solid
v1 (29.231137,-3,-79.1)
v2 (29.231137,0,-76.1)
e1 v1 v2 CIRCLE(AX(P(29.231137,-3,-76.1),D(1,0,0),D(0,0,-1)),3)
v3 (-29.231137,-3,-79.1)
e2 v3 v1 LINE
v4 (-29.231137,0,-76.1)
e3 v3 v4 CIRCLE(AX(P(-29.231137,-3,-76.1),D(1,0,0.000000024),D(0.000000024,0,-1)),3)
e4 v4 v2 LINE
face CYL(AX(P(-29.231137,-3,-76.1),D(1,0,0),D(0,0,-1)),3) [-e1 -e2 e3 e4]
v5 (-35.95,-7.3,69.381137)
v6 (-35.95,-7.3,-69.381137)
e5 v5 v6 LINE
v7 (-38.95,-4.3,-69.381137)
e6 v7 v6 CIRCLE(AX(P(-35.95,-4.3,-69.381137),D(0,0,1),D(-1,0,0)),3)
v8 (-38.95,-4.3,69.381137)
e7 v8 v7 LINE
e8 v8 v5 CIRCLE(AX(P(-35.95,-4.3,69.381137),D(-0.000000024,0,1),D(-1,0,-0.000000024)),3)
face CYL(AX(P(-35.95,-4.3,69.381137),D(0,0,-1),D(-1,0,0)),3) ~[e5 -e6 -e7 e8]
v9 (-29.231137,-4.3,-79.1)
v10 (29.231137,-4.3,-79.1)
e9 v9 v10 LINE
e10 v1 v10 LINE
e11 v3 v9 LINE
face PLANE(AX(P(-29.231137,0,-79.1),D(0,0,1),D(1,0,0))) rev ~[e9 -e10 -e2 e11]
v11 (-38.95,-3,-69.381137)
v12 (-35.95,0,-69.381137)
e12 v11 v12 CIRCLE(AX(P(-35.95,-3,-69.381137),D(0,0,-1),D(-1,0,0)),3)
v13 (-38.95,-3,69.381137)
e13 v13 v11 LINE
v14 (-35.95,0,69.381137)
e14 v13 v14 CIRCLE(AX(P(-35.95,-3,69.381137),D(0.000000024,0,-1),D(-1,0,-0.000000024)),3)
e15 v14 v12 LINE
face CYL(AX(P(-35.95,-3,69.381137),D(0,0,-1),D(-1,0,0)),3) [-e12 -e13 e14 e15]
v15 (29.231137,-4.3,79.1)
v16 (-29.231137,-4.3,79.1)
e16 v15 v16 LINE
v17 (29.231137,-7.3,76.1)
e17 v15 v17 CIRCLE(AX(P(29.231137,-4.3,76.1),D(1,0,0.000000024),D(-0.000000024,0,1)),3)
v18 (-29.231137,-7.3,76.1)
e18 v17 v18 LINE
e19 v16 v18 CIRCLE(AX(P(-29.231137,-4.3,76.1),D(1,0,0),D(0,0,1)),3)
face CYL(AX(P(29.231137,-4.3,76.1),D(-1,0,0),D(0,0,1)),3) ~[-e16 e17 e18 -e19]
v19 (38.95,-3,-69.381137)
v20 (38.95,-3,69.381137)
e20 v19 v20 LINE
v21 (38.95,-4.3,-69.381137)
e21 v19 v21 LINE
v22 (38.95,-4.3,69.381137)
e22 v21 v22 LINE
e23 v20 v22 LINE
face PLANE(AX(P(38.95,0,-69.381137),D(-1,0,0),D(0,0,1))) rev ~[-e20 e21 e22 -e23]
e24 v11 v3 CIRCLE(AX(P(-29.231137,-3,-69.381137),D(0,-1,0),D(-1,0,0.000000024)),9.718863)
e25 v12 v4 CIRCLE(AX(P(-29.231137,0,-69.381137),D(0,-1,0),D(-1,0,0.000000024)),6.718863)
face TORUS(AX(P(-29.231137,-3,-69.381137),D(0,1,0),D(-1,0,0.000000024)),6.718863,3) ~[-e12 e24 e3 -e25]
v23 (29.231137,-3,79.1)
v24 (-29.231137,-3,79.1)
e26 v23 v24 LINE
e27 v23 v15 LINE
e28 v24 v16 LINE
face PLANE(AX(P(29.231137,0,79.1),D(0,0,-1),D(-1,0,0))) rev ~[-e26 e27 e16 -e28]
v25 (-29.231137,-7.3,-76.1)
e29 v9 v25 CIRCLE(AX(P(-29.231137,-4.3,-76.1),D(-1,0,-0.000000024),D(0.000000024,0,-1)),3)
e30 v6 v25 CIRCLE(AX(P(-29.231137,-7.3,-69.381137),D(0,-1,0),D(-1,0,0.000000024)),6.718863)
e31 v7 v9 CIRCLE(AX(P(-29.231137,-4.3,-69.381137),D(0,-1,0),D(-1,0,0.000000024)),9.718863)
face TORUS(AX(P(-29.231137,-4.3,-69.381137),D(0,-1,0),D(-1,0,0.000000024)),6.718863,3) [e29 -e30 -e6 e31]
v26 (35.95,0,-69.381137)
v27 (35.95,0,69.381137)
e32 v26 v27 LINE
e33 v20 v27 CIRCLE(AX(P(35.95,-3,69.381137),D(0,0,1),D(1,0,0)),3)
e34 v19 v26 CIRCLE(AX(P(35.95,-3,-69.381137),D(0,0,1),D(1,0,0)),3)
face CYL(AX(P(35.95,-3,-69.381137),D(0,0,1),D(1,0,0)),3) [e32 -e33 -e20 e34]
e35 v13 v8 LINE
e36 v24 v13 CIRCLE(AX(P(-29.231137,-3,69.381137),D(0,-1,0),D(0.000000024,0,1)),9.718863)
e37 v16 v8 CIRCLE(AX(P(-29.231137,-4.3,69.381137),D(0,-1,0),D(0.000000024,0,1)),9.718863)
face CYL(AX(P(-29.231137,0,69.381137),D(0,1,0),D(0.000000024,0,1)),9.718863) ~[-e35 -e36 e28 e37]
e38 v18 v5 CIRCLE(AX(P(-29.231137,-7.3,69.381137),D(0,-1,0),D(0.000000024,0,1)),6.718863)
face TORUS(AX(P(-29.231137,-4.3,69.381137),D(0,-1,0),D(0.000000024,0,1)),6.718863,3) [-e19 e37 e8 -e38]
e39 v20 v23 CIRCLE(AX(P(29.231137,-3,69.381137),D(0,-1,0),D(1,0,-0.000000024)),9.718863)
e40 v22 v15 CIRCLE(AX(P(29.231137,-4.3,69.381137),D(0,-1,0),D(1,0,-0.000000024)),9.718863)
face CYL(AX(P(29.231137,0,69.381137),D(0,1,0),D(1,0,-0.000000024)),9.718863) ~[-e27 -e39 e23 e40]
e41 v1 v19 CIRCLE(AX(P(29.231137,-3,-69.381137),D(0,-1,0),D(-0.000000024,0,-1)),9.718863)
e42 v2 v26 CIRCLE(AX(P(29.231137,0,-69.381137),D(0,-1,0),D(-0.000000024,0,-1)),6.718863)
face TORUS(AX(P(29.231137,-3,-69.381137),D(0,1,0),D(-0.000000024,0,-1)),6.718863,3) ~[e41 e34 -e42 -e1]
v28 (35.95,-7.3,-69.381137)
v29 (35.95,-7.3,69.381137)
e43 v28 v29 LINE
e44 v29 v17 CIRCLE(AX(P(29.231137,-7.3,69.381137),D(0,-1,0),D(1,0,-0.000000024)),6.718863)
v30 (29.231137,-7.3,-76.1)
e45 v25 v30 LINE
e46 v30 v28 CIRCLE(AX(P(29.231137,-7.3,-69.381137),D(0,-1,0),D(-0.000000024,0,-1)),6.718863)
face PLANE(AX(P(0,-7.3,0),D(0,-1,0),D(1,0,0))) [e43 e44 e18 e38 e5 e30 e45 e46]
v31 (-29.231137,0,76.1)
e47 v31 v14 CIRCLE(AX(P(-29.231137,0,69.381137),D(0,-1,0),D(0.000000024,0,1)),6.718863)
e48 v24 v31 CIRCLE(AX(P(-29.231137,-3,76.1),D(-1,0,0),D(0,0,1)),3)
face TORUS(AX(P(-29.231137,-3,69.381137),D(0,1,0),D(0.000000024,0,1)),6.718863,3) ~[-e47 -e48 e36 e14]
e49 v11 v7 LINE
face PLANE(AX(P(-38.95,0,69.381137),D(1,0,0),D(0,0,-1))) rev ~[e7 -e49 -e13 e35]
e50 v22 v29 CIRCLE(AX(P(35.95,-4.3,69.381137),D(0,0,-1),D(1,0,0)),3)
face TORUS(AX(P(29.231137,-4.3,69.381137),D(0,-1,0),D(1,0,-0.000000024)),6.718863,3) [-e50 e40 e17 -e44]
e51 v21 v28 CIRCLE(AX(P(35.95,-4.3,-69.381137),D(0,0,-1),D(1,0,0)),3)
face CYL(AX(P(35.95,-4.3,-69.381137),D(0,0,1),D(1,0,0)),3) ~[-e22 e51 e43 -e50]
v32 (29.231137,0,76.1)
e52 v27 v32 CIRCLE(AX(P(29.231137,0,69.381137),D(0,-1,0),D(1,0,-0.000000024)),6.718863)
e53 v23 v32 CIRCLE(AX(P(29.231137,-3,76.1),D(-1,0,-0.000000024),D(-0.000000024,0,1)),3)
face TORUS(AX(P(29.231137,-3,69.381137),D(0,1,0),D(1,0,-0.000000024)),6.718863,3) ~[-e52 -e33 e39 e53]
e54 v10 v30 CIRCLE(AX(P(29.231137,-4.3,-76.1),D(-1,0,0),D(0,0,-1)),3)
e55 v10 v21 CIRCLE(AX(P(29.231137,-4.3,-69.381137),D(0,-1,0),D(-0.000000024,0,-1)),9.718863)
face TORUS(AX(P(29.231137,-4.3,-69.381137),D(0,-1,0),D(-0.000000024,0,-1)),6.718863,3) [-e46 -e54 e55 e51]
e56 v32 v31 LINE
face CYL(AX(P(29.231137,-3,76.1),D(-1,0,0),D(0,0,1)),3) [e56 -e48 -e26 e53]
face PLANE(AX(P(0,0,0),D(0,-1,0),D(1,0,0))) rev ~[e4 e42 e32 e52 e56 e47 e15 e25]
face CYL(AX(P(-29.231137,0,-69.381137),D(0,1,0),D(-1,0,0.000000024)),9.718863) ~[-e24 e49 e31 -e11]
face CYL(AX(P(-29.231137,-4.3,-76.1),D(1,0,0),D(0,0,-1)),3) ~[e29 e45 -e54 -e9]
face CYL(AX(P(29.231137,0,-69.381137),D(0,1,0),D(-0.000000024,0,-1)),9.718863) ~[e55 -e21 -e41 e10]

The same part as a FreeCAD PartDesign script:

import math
import FreeCAD as App
import Part
import Sketcher


def edges_at(feature, points):
    """Names of the edges that pass closest to the given points."""
    edges = feature.Shape.Edges
    near = lambda p: min(range(len(edges)), key=lambda i: edges[i].distToShape(Part.Vertex(*p))[0])
    return sorted({f"Edge{near(p) + 1}" for p in points})

doc = App.newDocument("Part")
params = doc.addObject("Spreadsheet::Sheet", "Params")
for row, (alias, value) in enumerate([
    ("pad1_length", "7.3 mm"),
    ("fillet_radius", "3 mm"),
], start=1):
    params.set(f"A{row}", alias)
    params.set(f"B{row}", "=" + value)
    params.setAlias(f"B{row}", alias)

body = doc.addObject("PartDesign::Body", "Body")

sketch1 = body.newObject("Sketcher::SketchObject", "Sketch")
sketch1.AttachmentSupport = (doc.getObject("XZ_Plane"), [""])
sketch1.MapMode = "FlatFace"
sketch1.addGeometry([
    Part.LineSegment(App.Vector(29, 79, 0), App.Vector(-29, 79, 0)),
    Part.ArcOfCircle(Part.Circle(App.Vector(-29, 69, 0), App.Vector(0, 0, 1), 10), math.radians(90), math.radians(180)),
    Part.LineSegment(App.Vector(-39, 69, 0), App.Vector(-39, -69, 0)),
    Part.ArcOfCircle(Part.Circle(App.Vector(-29, -69, 0), App.Vector(0, 0, 1), 10), math.radians(180), math.radians(270)),
    Part.LineSegment(App.Vector(-29, -79, 0), App.Vector(29, -79, 0)),
    Part.ArcOfCircle(Part.Circle(App.Vector(29, -69, 0), App.Vector(0, 0, 1), 10), math.radians(-90), math.radians(0)),
    Part.LineSegment(App.Vector(39, -69, 0), App.Vector(39, 69, 0)),
    Part.ArcOfCircle(Part.Circle(App.Vector(29, 69, 0), App.Vector(0, 0, 1), 10), math.radians(0), math.radians(90)),
], False)
sketch1.addConstraint([
    Sketcher.Constraint("Tangent", 0, 2, 1, 1),
    Sketcher.Constraint("Tangent", 1, 2, 2, 1),
    Sketcher.Constraint("Tangent", 2, 2, 3, 1),
    Sketcher.Constraint("Tangent", 3, 2, 4, 1),
    Sketcher.Constraint("Tangent", 4, 2, 5, 1),
    Sketcher.Constraint("Tangent", 5, 2, 6, 1),
    Sketcher.Constraint("Tangent", 6, 2, 7, 1),
    Sketcher.Constraint("Tangent", 7, 2, 0, 1),
    Sketcher.Constraint("Horizontal", 0),
    Sketcher.Constraint("Vertical", 2),
    Sketcher.Constraint("Horizontal", 4),
    Sketcher.Constraint("Vertical", 6),
    Sketcher.Constraint("Equal", 1, 3),
    Sketcher.Constraint("Equal", 3, 5),
    Sketcher.Constraint("Equal", 5, 7),
    Sketcher.Constraint("Symmetric", 1, 3, 5, 3, -1, 1),
    Sketcher.Constraint("DistanceY", -1, 1, 0, 2, 79.1),
    Sketcher.Constraint("DistanceX", 2, 2, 5, 2, 77.9),
    Sketcher.Constraint("Radius", 1, 9.718863),
])
pad1 = body.newObject("PartDesign::Pad", "Pad")
pad1.Profile = sketch1
pad1.setExpression("Length", "Params.pad1_length")
doc.recompute()

fillet = body.newObject("PartDesign::Fillet", "Fillet")
fillet.Base = (pad1, edges_at(pad1, [
    (38.95, -7.3, 0),
    (36.103, -7.3, 76.253),
    (0, -7.3, 79.1),
    (-36.103, -7.3, 76.253),
    (-38.95, -7.3, 0),
    (-36.103, -7.3, -76.253),
    (0, -7.3, -79.1),
    (36.103, -7.3, -76.253),
    (38.95, 0, 0),
    (36.103, 0, 76.253),
    (0, 0, 79.1),
    (-36.103, 0, 76.253),
    (-38.95, 0, 0),
    (-36.103, 0, -76.253),
    (0, 0, -79.1),
    (36.103, 0, -76.253),
]))
fillet.setExpression("Radius", "Params.fillet_radius")

doc.recompute()
